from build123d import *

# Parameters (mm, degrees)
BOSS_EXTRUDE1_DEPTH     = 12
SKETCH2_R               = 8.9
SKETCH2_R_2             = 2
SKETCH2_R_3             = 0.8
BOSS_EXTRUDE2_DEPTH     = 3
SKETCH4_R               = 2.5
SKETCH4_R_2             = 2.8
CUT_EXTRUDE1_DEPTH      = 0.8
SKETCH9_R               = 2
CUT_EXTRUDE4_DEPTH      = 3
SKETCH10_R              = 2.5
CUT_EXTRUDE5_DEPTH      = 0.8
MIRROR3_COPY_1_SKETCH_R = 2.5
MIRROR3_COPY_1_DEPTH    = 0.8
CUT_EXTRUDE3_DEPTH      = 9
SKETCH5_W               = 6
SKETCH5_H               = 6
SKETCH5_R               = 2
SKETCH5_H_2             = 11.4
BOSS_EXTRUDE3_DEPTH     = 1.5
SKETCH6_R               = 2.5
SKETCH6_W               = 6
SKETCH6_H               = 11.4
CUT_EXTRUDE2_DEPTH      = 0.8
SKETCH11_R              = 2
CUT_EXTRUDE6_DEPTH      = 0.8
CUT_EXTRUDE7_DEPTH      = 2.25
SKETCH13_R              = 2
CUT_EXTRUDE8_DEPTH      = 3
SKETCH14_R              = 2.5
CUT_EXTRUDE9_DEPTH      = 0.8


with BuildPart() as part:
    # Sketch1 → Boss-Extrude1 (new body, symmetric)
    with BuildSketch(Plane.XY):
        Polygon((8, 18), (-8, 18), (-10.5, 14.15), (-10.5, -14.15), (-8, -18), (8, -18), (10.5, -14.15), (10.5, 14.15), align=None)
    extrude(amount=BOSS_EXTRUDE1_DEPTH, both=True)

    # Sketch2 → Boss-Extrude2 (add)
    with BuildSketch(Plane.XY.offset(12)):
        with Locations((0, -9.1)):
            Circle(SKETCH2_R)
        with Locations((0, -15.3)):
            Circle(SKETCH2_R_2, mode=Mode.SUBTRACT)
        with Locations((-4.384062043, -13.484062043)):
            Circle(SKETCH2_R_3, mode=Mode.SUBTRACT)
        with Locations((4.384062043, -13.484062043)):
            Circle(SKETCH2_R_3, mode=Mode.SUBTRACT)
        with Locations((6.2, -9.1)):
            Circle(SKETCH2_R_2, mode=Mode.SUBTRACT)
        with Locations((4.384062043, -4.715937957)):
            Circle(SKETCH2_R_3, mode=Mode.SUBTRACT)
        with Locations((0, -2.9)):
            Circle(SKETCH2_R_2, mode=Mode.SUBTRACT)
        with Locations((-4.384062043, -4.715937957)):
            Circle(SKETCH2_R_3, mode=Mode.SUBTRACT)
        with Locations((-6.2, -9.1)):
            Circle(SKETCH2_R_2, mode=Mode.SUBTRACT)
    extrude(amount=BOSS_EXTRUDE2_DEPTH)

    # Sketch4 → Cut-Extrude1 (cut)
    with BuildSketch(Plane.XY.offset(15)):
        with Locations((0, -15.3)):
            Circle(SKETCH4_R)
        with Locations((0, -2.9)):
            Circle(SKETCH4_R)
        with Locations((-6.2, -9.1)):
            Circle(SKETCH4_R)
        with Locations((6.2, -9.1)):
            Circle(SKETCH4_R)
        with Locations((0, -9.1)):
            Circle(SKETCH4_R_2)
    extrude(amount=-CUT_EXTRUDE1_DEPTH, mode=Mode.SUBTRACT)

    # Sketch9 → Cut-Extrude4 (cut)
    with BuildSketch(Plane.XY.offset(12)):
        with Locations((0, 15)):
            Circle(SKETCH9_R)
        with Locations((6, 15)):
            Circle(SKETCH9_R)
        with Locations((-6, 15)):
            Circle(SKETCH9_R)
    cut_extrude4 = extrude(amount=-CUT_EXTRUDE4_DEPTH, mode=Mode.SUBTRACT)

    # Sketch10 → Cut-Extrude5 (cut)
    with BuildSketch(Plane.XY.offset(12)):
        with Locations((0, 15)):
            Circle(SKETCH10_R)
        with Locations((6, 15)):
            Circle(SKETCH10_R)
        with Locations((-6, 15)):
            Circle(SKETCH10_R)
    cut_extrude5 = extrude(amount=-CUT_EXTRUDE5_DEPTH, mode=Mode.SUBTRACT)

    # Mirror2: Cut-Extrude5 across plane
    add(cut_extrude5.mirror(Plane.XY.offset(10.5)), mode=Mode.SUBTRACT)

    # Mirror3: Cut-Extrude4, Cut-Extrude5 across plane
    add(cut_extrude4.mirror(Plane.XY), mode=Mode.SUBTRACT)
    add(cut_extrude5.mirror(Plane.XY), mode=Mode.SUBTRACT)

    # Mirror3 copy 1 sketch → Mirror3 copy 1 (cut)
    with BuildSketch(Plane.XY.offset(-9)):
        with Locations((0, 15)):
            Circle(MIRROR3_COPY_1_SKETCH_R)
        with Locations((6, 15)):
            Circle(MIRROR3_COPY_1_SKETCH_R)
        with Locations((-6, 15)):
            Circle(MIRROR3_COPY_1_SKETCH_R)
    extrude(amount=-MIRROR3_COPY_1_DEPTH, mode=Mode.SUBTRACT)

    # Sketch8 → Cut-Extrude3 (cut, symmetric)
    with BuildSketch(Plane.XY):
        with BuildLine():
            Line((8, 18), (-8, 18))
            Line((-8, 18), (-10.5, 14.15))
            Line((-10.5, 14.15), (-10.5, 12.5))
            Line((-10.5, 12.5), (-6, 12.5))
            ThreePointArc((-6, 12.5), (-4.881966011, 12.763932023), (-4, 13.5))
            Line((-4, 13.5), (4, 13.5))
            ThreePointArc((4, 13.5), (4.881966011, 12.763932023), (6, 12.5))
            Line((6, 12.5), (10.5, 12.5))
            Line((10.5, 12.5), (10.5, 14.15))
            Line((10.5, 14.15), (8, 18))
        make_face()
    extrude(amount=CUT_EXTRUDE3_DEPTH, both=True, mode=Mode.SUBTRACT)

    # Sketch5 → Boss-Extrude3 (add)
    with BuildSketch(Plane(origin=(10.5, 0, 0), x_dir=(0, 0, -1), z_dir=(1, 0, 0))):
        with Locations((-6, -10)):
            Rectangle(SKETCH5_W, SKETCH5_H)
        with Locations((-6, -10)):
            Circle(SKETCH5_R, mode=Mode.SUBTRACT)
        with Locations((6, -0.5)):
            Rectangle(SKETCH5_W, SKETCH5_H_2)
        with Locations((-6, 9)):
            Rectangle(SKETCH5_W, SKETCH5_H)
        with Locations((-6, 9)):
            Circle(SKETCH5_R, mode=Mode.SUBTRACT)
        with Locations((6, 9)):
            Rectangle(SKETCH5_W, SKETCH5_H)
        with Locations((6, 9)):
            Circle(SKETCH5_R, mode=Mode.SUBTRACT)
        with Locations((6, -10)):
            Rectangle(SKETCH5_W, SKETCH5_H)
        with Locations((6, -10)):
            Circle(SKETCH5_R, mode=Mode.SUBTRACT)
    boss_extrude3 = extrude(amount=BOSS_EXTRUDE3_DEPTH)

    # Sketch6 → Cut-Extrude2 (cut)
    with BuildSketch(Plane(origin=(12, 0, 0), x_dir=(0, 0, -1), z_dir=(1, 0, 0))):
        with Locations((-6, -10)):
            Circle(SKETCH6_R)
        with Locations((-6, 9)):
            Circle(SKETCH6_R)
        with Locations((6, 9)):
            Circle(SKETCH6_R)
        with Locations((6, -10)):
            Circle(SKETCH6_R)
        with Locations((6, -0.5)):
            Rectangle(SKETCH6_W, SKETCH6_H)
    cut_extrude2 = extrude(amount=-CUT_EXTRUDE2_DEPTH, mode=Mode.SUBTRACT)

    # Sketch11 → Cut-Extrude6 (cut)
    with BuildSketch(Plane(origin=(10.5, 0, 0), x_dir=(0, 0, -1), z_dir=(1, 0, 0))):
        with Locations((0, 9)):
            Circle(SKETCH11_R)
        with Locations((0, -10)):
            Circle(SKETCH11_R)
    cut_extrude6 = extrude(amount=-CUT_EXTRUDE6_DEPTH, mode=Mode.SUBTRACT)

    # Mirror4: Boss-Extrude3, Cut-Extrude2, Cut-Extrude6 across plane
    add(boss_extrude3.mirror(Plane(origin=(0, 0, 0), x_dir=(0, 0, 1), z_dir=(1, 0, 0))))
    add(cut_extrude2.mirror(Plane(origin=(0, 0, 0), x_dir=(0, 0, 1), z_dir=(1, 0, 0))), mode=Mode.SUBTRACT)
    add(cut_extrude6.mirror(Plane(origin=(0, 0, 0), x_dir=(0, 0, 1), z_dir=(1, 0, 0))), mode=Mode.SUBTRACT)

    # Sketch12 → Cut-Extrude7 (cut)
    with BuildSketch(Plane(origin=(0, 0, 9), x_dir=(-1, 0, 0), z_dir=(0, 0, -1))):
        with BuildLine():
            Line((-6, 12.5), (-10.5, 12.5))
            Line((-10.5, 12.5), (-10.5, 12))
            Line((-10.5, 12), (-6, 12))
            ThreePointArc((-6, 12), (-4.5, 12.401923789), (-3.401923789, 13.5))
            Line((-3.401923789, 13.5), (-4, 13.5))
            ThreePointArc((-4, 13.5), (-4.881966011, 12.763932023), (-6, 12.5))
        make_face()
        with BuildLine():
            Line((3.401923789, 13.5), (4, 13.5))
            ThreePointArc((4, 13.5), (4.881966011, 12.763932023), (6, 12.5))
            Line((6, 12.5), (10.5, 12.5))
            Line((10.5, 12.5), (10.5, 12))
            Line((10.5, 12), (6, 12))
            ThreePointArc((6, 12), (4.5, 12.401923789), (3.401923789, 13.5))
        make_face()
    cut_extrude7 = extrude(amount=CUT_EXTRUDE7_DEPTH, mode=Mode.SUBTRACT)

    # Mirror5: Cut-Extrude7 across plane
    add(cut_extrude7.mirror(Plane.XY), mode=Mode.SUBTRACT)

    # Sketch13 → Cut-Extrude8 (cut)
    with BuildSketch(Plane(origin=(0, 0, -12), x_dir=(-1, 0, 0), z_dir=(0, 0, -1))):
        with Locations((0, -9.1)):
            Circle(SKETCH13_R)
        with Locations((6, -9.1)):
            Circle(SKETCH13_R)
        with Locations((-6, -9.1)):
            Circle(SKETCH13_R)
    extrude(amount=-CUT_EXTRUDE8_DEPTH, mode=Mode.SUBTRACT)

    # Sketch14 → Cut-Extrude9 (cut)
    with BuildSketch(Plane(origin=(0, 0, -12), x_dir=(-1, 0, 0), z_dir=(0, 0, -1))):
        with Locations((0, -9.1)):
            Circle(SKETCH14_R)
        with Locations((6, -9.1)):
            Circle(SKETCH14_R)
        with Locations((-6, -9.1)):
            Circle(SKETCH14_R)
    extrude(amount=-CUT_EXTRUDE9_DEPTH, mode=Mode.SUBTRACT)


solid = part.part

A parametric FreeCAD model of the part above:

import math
import FreeCAD as App
import Part
import Sketcher

V = App.Vector
Q = App.Units.Quantity

doc = App.newDocument("Part")
body = doc.addObject("PartDesign::Body", "Body")

# Sketch on XY plane
sketch1 = body.newObject("Sketcher::SketchObject", "Sketch")
sketch1.AttachmentSupport = (doc.getObject("XY_Plane"), [""])
sketch1.MapMode = "FlatFace"
sketch1.addGeometry([
    Part.LineSegment(V(8, 18, 0), V(-8, 18, 0)),  # 0
    Part.LineSegment(V(-8, 18, 0), V(-10.5, 14.15, 0)),  # 1
    Part.LineSegment(V(-10.5, 14.15, 0), V(-10.5, -14.15, 0)),  # 2
    Part.LineSegment(V(-10.5, -14.15, 0), V(-8, -18, 0)),  # 3
    Part.LineSegment(V(-8, -18, 0), V(8, -18, 0)),  # 4
    Part.LineSegment(V(8, -18, 0), V(10.5, -14.15, 0)),  # 5
    Part.LineSegment(V(10.5, -14.15, 0), V(10.5, 14.15, 0)),  # 6
    Part.LineSegment(V(10.5, 14.15, 0), V(8, 18, 0)),  # 7
], False)
sketch1.addConstraint([
    Sketcher.Constraint("Coincident", 0, 2, 1, 1),
    Sketcher.Constraint("Coincident", 1, 2, 2, 1),
    Sketcher.Constraint("Coincident", 2, 2, 3, 1),
    Sketcher.Constraint("Coincident", 3, 2, 4, 1),
    Sketcher.Constraint("Coincident", 4, 2, 5, 1),
    Sketcher.Constraint("Coincident", 5, 2, 6, 1),
    Sketcher.Constraint("Coincident", 6, 2, 7, 1),
    Sketcher.Constraint("Coincident", 7, 2, 0, 1),
    Sketcher.Constraint("Horizontal", 0),
    Sketcher.Constraint("Vertical", 2),
    Sketcher.Constraint("Horizontal", 4),
    Sketcher.Constraint("Vertical", 6),
    Sketcher.Constraint("Symmetric", 0, 2, 4, 2, -1, 1),
    Sketcher.Constraint("Symmetric", 1, 2, 5, 2, -1, 1),
    Sketcher.Constraint("Parallel", 3, 7),
    Sketcher.Constraint("Horizontal", 2, 2, 5, 2),
    Sketcher.Constraint("Horizontal", 1, 2, 6, 2),
    Sketcher.Constraint("Vertical", 0, 2, 3, 2),
    Sketcher.Constraint("DistanceX", 0, 2, 0, 1, Q("16 mm")),
    Sketcher.Constraint("DistanceY", 2, 2, 2, 1, Q("28.3 mm")),
    Sketcher.Constraint("DistanceY", -1, 1, 0, 2, Q("18 mm")),
    Sketcher.Constraint("DistanceX", 2, 2, 5, 2, Q("21 mm")),
])
pad1 = body.newObject("PartDesign::Pad", "Pad")
pad1.Profile = sketch1
pad1.Length = 24
pad1.Midplane = True

# Sketch on XY plane
sketch2 = body.newObject("Sketcher::SketchObject", "Sketch001")
sketch2.AttachmentSupport = (doc.getObject("XY_Plane"), [""])
sketch2.MapMode = "FlatFace"
sketch2.AttachmentOffset = App.Placement(V(0, 0, 12), App.Rotation())
sketch2.addGeometry([
    Part.Circle(V(0, -9.1, 0), V(0, 0, 1), 8.9),  # 0
    Part.Circle(V(-4.384062, -13.484062, 0), V(0, 0, 1), 0.8),  # 1
    Part.Circle(V(0, -15.3, 0), V(0, 0, 1), 2),  # 2
    Part.Circle(V(4.384062, -13.484062, 0), V(0, 0, 1), 0.8),  # 3
    Part.Circle(V(-6.2, -9.1, 0), V(0, 0, 1), 2),  # 4
    Part.Circle(V(-4.384062, -4.715938, 0), V(0, 0, 1), 0.8),  # 5
    Part.Circle(V(6.2, -9.1, 0), V(0, 0, 1), 2),  # 6
    Part.Circle(V(0, -2.9, 0), V(0, 0, 1), 2),  # 7
    Part.Circle(V(4.384062, -4.715938, 0), V(0, 0, 1), 0.8),  # 8
], False)
sketch2.addConstraint([
    Sketcher.Constraint("Equal", 1, 3),
    Sketcher.Constraint("Equal", 2, 4),
    Sketcher.Constraint("Equal", 3, 5),
    Sketcher.Constraint("Equal", 4, 6),
    Sketcher.Constraint("Equal", 6, 7),
    Sketcher.Constraint("Equal", 5, 8),
    Sketcher.Constraint("Symmetric", 1, 3, 3, 3, -2),
    Sketcher.Constraint("Symmetric", 4, 3, 6, 3, -2),
    Sketcher.Constraint("Symmetric", 5, 3, 8, 3, -2),
    Sketcher.Constraint("PointOnObject", 0, 3, -2),
    Sketcher.Constraint("PointOnObject", 2, 3, -2),
    Sketcher.Constraint("PointOnObject", 7, 3, -2),
    Sketcher.Constraint("Horizontal", 0, 3, 4, 3),
    Sketcher.Constraint("Vertical", 1, 3, 5, 3),
    Sketcher.Constraint("Diameter", 2, Q("4 mm")),
    Sketcher.Constraint("Diameter", 0, Q("17.8 mm")),
    Sketcher.Constraint("Diameter", 1, Q("1.6 mm")),
    Sketcher.Constraint("DistanceY", 0, 3, -1, 1, Q("9.1 mm")),
    Sketcher.Constraint("DistanceY", 2, 3, -1, 1, Q("15.3 mm")),
    Sketcher.Constraint("DistanceX", 4, 3, -1, 1, Q("6.2 mm")),
    Sketcher.Constraint("DistanceY", 7, 3, -1, 1, Q("2.9 mm")),
    Sketcher.Constraint("DistanceX", 1, 3, -1, 1, Q("4.384062 mm")),
    Sketcher.Constraint("DistanceY", 1, 3, -1, 1, Q("13.484062 mm")),
    Sketcher.Constraint("DistanceY", 5, 3, -1, 1, Q("4.715938 mm")),
])
pad2 = body.newObject("PartDesign::Pad", "Pad001")
pad2.Profile = sketch2
pad2.Length = 3

# Sketch on XY plane
sketch3 = body.newObject("Sketcher::SketchObject", "Sketch002")
sketch3.AttachmentSupport = (doc.getObject("XY_Plane"), [""])
sketch3.MapMode = "FlatFace"
sketch3.AttachmentOffset = App.Placement(V(0, 0, 15), App.Rotation())
sketch3.addGeometry([
    Part.Circle(V(0, -15.3, 0), V(0, 0, 1), 2.5),  # 0
    Part.Circle(V(0, -2.9, 0), V(0, 0, 1), 2.5),  # 1
    Part.Circle(V(-6.2, -9.1, 0), V(0, 0, 1), 2.5),  # 2
    Part.Circle(V(6.2, -9.1, 0), V(0, 0, 1), 2.5),  # 3
    Part.Circle(V(0, -9.1, 0), V(0, 0, 1), 2.8),  # 4
], False)
sketch3.addConstraint([
    Sketcher.Constraint("Equal", 0, 1),
    Sketcher.Constraint("Equal", 1, 2),
    Sketcher.Constraint("Equal", 2, 3),
    Sketcher.Constraint("Symmetric", 2, 3, 3, 3, -2),
    Sketcher.Constraint("PointOnObject", 0, 3, -2),
    Sketcher.Constraint("PointOnObject", 1, 3, -2),
    Sketcher.Constraint("PointOnObject", 4, 3, -2),
    Sketcher.Constraint("Horizontal", 3, 3, 4, 3),
    Sketcher.Constraint("Diameter", 0, Q("5 mm")),
    Sketcher.Constraint("Diameter", 4, Q("5.6 mm")),
    Sketcher.Constraint("DistanceY", 0, 3, -1, 1, Q("15.3 mm")),
    Sketcher.Constraint("DistanceY", 1, 3, -1, 1, Q("2.9 mm")),
    Sketcher.Constraint("DistanceX", 2, 3, -1, 1, Q("6.2 mm")),
    Sketcher.Constraint("DistanceY", 2, 3, -1, 1, Q("9.1 mm")),
])
pocket1 = body.newObject("PartDesign::Pocket", "Pocket")
pocket1.Profile = sketch3
pocket1.Length = 0.8

# Sketch on XY plane
sketch4 = body.newObject("Sketcher::SketchObject", "Sketch003")
sketch4.AttachmentSupport = (doc.getObject("XY_Plane"), [""])
sketch4.MapMode = "FlatFace"
sketch4.AttachmentOffset = App.Placement(V(0, 0, 12), App.Rotation())
sketch4.addGeometry([
    Part.Circle(V(0, 15, 0), V(0, 0, 1), 2),
    Part.Circle(V(6, 15, 0), V(0, 0, 1), 2),
    Part.Circle(V(-6, 15, 0), V(0, 0, 1), 2),
], False)
sketch4.addConstraint([
    Sketcher.Constraint("Equal", 0, 1),
    Sketcher.Constraint("Equal", 1, 2),
    Sketcher.Constraint("Symmetric", 1, 3, 2, 3, -2),
    Sketcher.Constraint("PointOnObject", 0, 3, -2),
    Sketcher.Constraint("Horizontal", 0, 3, 1, 3),
    Sketcher.Constraint("Diameter", 0, Q("4 mm")),
    Sketcher.Constraint("DistanceY", -1, 1, 0, 3, Q("15 mm")),
    Sketcher.Constraint("DistanceX", -1, 1, 1, 3, Q("6 mm")),
])
pocket2 = body.newObject("PartDesign::Pocket", "Pocket001")
pocket2.Profile = sketch4
pocket2.Length = 3

# Sketch on XY plane
sketch5 = body.newObject("Sketcher::SketchObject", "Sketch004")
sketch5.AttachmentSupport = (doc.getObject("XY_Plane"), [""])
sketch5.MapMode = "FlatFace"
sketch5.AttachmentOffset = App.Placement(V(0, 0, 12), App.Rotation())
sketch5.addGeometry([
    Part.Circle(V(0, 15, 0), V(0, 0, 1), 2.5),
    Part.Circle(V(6, 15, 0), V(0, 0, 1), 2.5),
    Part.Circle(V(-6, 15, 0), V(0, 0, 1), 2.5),
], False)
sketch5.addConstraint([
    Sketcher.Constraint("Equal", 0, 1),
    Sketcher.Constraint("Equal", 1, 2),
    Sketcher.Constraint("Symmetric", 1, 3, 2, 3, -2),
    Sketcher.Constraint("PointOnObject", 0, 3, -2),
    Sketcher.Constraint("Horizontal", 0, 3, 1, 3),
    Sketcher.Constraint("Diameter", 0, Q("5 mm")),
    Sketcher.Constraint("DistanceY", -1, 1, 0, 3, Q("15 mm")),
    Sketcher.Constraint("DistanceX", -1, 1, 1, 3, Q("6 mm")),
])
pocket3 = body.newObject("PartDesign::Pocket", "Pocket002")
pocket3.Profile = sketch5
pocket3.Length = 0.8
doc.recompute()

datumplane = body.newObject("PartDesign::Plane", "DatumPlane")
datumplane.AttachmentSupport = (doc.getObject("XY_Plane"), [""])
datumplane.MapMode = "FlatFace"
datumplane.AttachmentOffset = App.Placement(V(0, 0, 10.5), App.Rotation())
mirrored = body.newObject("PartDesign::Mirrored", "Mirrored")
mirrored.Originals = [pocket3]
mirrored.MirrorPlane = (datumplane, [""])
body.Tip = mirrored
doc.recompute()

mirrored2 = body.newObject("PartDesign::Mirrored", "Mirrored001")
mirrored2.Originals = [pocket2, pocket3]
mirrored2.MirrorPlane = (doc.getObject("XY_Plane"), [""])
body.Tip = mirrored2

# Sketch on XY plane
sketch6 = body.newObject("Sketcher::SketchObject", "Sketch005")
sketch6.AttachmentSupport = (doc.getObject("XY_Plane"), [""])
sketch6.MapMode = "FlatFace"
sketch6.AttachmentOffset = App.Placement(V(0, 0, -9), App.Rotation())
sketch6.addGeometry([
    Part.Circle(V(0, 15, 0), V(0, 0, 1), 2.5),
    Part.Circle(V(6, 15, 0), V(0, 0, 1), 2.5),
    Part.Circle(V(-6, 15, 0), V(0, 0, 1), 2.5),
], False)
sketch6.addConstraint([
    Sketcher.Constraint("Equal", 0, 1),
    Sketcher.Constraint("Equal", 1, 2),
    Sketcher.Constraint("Symmetric", 1, 3, 2, 3, -2),
    Sketcher.Constraint("PointOnObject", 0, 3, -2),
    Sketcher.Constraint("Horizontal", 0, 3, 1, 3),
    Sketcher.Constraint("Diameter", 0, Q("5 mm")),
    Sketcher.Constraint("DistanceY", -1, 1, 0, 3, Q("15 mm")),
    Sketcher.Constraint("DistanceX", -1, 1, 1, 3, Q("6 mm")),
])
pocket4 = body.newObject("PartDesign::Pocket", "Pocket003")
pocket4.Profile = sketch6
pocket4.Length = 0.8

# Sketch on XY plane
sketch7 = body.newObject("Sketcher::SketchObject", "Sketch006")
sketch7.AttachmentSupport = (doc.getObject("XY_Plane"), [""])
sketch7.MapMode = "FlatFace"
sketch7.addGeometry([
    Part.LineSegment(V(8, 18, 0), V(-8, 18, 0)),  # 0
    Part.LineSegment(V(-8, 18, 0), V(-10.5, 14.15, 0)),  # 1
    Part.LineSegment(V(-10.5, 14.15, 0), V(-10.5, 12.5, 0)),  # 2
    Part.LineSegment(V(-10.5, 12.5, 0), V(-6, 12.5, 0)),  # 3
    Part.ArcOfCircle(Part.Circle(V(-6, 15, 0), V(0, 0, 1), 2.5), math.radians(-90), math.radians(-36.869898)),  # 4
    Part.LineSegment(V(-4, 13.5, 0), V(4, 13.5, 0)),  # 5
    Part.ArcOfCircle(Part.Circle(V(6, 15, 0), V(0, 0, 1), 2.5), math.radians(-143.130102), math.radians(-90)),  # 6
    Part.LineSegment(V(6, 12.5, 0), V(10.5, 12.5, 0)),  # 7
    Part.LineSegment(V(10.5, 12.5, 0), V(10.5, 14.15, 0)),  # 8
    Part.LineSegment(V(10.5, 14.15, 0), V(8, 18, 0)),  # 9
], False)
sketch7.addConstraint([
    Sketcher.Constraint("Coincident", 0, 2, 1, 1),
    Sketcher.Constraint("Coincident", 1, 2, 2, 1),
    Sketcher.Constraint("Coincident", 2, 2, 3, 1),
    Sketcher.Constraint("Tangent", 3, 2, 4, 1),
    Sketcher.Constraint("Coincident", 4, 2, 5, 1),
    Sketcher.Constraint("Coincident", 5, 2, 6, 1),
    Sketcher.Constraint("Tangent", 6, 2, 7, 1),
    Sketcher.Constraint("Coincident", 7, 2, 8, 1),
    Sketcher.Constraint("Coincident", 8, 2, 9, 1),
    Sketcher.Constraint("Coincident", 9, 2, 0, 1),
    Sketcher.Constraint("Horizontal", 0),
    Sketcher.Constraint("Vertical", 2),
    Sketcher.Constraint("Horizontal", 3),
    Sketcher.Constraint("Horizontal", 5),
    Sketcher.Constraint("Horizontal", 7),
    Sketcher.Constraint("Vertical", 8),
    Sketcher.Constraint("Equal", 4, 6),
    Sketcher.Constraint("Symmetric", 4, 3, 6, 3, -2),
    Sketcher.Constraint("Symmetric", 1, 2, 8, 2, -2),
    Sketcher.Constraint("Equal", 1, 9),
    Sketcher.Constraint("Radius", 4, Q("2.5 mm")),
    Sketcher.Constraint("DistanceX", 0, 2, 0, 1, Q("16 mm")),
    Sketcher.Constraint("DistanceX", 5, 1, 5, 2, Q("8 mm")),
    Sketcher.Constraint("DistanceX", 3, 1, 3, 2, Q("4.5 mm")),
    Sketcher.Constraint("DistanceX", 4, 3, -1, 1, Q("6 mm")),
    Sketcher.Constraint("DistanceY", -1, 1, 4, 3, Q("15 mm")),
    Sketcher.Constraint("DistanceY", -1, 1, 0, 2, Q("18 mm")),
    Sketcher.Constraint("DistanceY", 2, 2, 2, 1, Q("1.65 mm")),
])
pocket5 = body.newObject("PartDesign::Pocket", "Pocket004")
pocket5.Profile = sketch7
pocket5.Length = 18
pocket5.Midplane = True

# Sketch on YZ plane
sketch8 = body.newObject("Sketcher::SketchObject", "Sketch007")
sketch8.AttachmentSupport = (doc.getObject("YZ_Plane"), [""])
sketch8.MapMode = "FlatFace"
sketch8.AttachmentOffset = App.Placement(V(0, 0, 10.5), App.Rotation())
sketch8.addGeometry([
    Part.LineSegment(V(-7, 9, 0), V(-13, 9, 0)),  # 0
    Part.LineSegment(V(-13, 9, 0), V(-13, 3, 0)),  # 1
    Part.LineSegment(V(-13, 3, 0), V(-7, 3, 0)),  # 2
    Part.LineSegment(V(-7, 3, 0), V(-7, 9, 0)),  # 3
    Part.Circle(V(-10, 6, 0), V(0, 0, 1), 2),  # 4
    Part.LineSegment(V(5.2, -3, 0), V(-6.2, -3, 0)),  # 5
    Part.LineSegment(V(-6.2, -3, 0), V(-6.2, -9, 0)),  # 6
    Part.LineSegment(V(-6.2, -9, 0), V(5.2, -9, 0)),  # 7
    Part.LineSegment(V(5.2, -9, 0), V(5.2, -3, 0)),  # 8
    Part.LineSegment(V(12, 9, 0), V(6, 9, 0)),  # 9
    Part.LineSegment(V(6, 9, 0), V(6, 3, 0)),  # 10
    Part.LineSegment(V(6, 3, 0), V(12, 3, 0)),  # 11
    Part.LineSegment(V(12, 3, 0), V(12, 9, 0)),  # 12
    Part.Circle(V(9, 6, 0), V(0, 0, 1), 2),  # 13
    Part.LineSegment(V(12, -3, 0), V(6, -3, 0)),  # 14
    Part.LineSegment(V(6, -3, 0), V(6, -9, 0)),  # 15
    Part.LineSegment(V(6, -9, 0), V(12, -9, 0)),  # 16
    Part.LineSegment(V(12, -9, 0), V(12, -3, 0)),  # 17
    Part.Circle(V(9, -6, 0), V(0, 0, 1), 2),  # 18
    Part.LineSegment(V(-7, -3, 0), V(-13, -3, 0)),  # 19
    Part.LineSegment(V(-13, -3, 0), V(-13, -9, 0)),  # 20
    Part.LineSegment(V(-13, -9, 0), V(-7, -9, 0)),  # 21
    Part.LineSegment(V(-7, -9, 0), V(-7, -3, 0)),  # 22
    Part.Circle(V(-10, -6, 0), V(0, 0, 1), 2),  # 23
], False)
sketch8.addConstraint([
    Sketcher.Constraint("Coincident", 0, 2, 1, 1),
    Sketcher.Constraint("Coincident", 1, 2, 2, 1),
    Sketcher.Constraint("Coincident", 2, 2, 3, 1),
    Sketcher.Constraint("Coincident", 3, 2, 0, 1),
    Sketcher.Constraint("Coincident", 5, 2, 6, 1),
    Sketcher.Constraint("Coincident", 6, 2, 7, 1),
    Sketcher.Constraint("Coincident", 7, 2, 8, 1),
    Sketcher.Constraint("Coincident", 8, 2, 5, 1),
    Sketcher.Constraint("Coincident", 9, 2, 10, 1),
    Sketcher.Constraint("Coincident", 10, 2, 11, 1),
    Sketcher.Constraint("Coincident", 11, 2, 12, 1),
    Sketcher.Constraint("Coincident", 12, 2, 9, 1),
    Sketcher.Constraint("Coincident", 14, 2, 15, 1),
    Sketcher.Constraint("Coincident", 15, 2, 16, 1),
    Sketcher.Constraint("Coincident", 16, 2, 17, 1),
    Sketcher.Constraint("Coincident", 17, 2, 14, 1),
    Sketcher.Constraint("Coincident", 19, 2, 20, 1),
    Sketcher.Constraint("Coincident", 20, 2, 21, 1),
    Sketcher.Constraint("Coincident", 21, 2, 22, 1),
    Sketcher.Constraint("Coincident", 22, 2, 19, 1),
    Sketcher.Constraint("Horizontal", 0),
    Sketcher.Constraint("Vertical", 1),
    Sketcher.Constraint("Horizontal", 2),
    Sketcher.Constraint("Vertical", 3),
    Sketcher.Constraint("Horizontal", 5),
    Sketcher.Constraint("Vertical", 6),
    Sketcher.Constraint("Horizontal", 7),
    Sketcher.Constraint("Vertical", 8),
    Sketcher.Constraint("Horizontal", 9),
    Sketcher.Constraint("Vertical", 10),
    Sketcher.Constraint("Horizontal", 11),
    Sketcher.Constraint("Vertical", 12),
    Sketcher.Constraint("Horizontal", 14),
    Sketcher.Constraint("Vertical", 15),
    Sketcher.Constraint("Horizontal", 16),
    Sketcher.Constraint("Vertical", 17),
    Sketcher.Constraint("Horizontal", 19),
    Sketcher.Constraint("Vertical", 20),
    Sketcher.Constraint("Horizontal", 21),
    Sketcher.Constraint("Vertical", 22),
    Sketcher.Constraint("Equal", 4, 13),
    Sketcher.Constraint("Equal", 13, 18),
    Sketcher.Constraint("Equal", 18, 23),
    Sketcher.Constraint("Symmetric", 13, 3, 18, 3, -1),
    Sketcher.Constraint("Symmetric", 4, 3, 23, 3, -1),
    Sketcher.Constraint("Symmetric", 10, 2, 14, 2, -1),
    Sketcher.Constraint("Symmetric", 12, 2, 16, 2, -1),
    Sketcher.Constraint("Symmetric", 1, 2, 19, 2, -1),
    Sketcher.Constraint("Symmetric", 3, 2, 21, 2, -1),
    Sketcher.Constraint("Horizontal", 4, 3, 13, 3),
    Sketcher.Constraint("Horizontal", 3, 2, 9, 2),
    Sketcher.Constraint("Horizontal", 2, 2, 10, 2),
    Sketcher.Constraint("Horizontal", 8, 2, 14, 2),
    Sketcher.Constraint("Horizontal", 7, 2, 15, 2),
    Sketcher.Constraint("Equal", 2, 9),
    Sketcher.Constraint("Equal", 21, 1),
    Sketcher.Constraint("Diameter", 4, Q("4 mm")),
    Sketcher.Constraint("DistanceX", 0, 2, 0, 1, Q("6 mm")),
    Sketcher.Constraint("DistanceX", 5, 2, 5, 1, Q("11.4 mm")),
    Sketcher.Constraint("DistanceX", 4, 3, -1, 1, Q("10 mm")),
    Sketcher.Constraint("DistanceY", -1, 1, 4, 3, Q("6 mm")),
    Sketcher.Constraint("DistanceX", -1, 1, 13, 3, Q("9 mm")),
    Sketcher.Constraint("DistanceX", 0, 2, -1, 1, Q("13 mm")),
    Sketcher.Constraint("DistanceY", -1, 1, 0, 2, Q("9 mm")),
    Sketcher.Constraint("DistanceX", -1, 1, 9, 2, Q("6 mm")),
    Sketcher.Constraint("DistanceX", 5, 2, -1, 1, Q("6.2 mm")),
])
pad3 = body.newObject("PartDesign::Pad", "Pad002")
pad3.Profile = sketch8
pad3.Length = 1.5

# Sketch on YZ plane
sketch9 = body.newObject("Sketcher::SketchObject", "Sketch008")
sketch9.AttachmentSupport = (doc.getObject("YZ_Plane"), [""])
sketch9.MapMode = "FlatFace"
sketch9.AttachmentOffset = App.Placement(V(0, 0, 12), App.Rotation())
sketch9.addGeometry([
    Part.Circle(V(-10, 6, 0), V(0, 0, 1), 2.5),  # 0
    Part.Circle(V(9, 6, 0), V(0, 0, 1), 2.5),  # 1
    Part.Circle(V(9, -6, 0), V(0, 0, 1), 2.5),  # 2
    Part.Circle(V(-10, -6, 0), V(0, 0, 1), 2.5),  # 3
    Part.LineSegment(V(5.2, -3, 0), V(-6.2, -3, 0)),  # 4
    Part.LineSegment(V(-6.2, -3, 0), V(-6.2, -9, 0)),  # 5
    Part.LineSegment(V(-6.2, -9, 0), V(5.2, -9, 0)),  # 6
    Part.LineSegment(V(5.2, -9, 0), V(5.2, -3, 0)),  # 7
], False)
sketch9.addConstraint([
    Sketcher.Constraint("Coincident", 4, 2, 5, 1),
    Sketcher.Constraint("Coincident", 5, 2, 6, 1),
    Sketcher.Constraint("Coincident", 6, 2, 7, 1),
    Sketcher.Constraint("Coincident", 7, 2, 4, 1),
    Sketcher.Constraint("Horizontal", 4),
    Sketcher.Constraint("Vertical", 5),
    Sketcher.Constraint("Horizontal", 6),
    Sketcher.Constraint("Vertical", 7),
    Sketcher.Constraint("Equal", 0, 1),
    Sketcher.Constraint("Equal", 1, 2),
    Sketcher.Constraint("Equal", 2, 3),
    Sketcher.Constraint("Symmetric", 1, 3, 2, 3, -1),
    Sketcher.Constraint("Symmetric", 0, 3, 3, 3, -1),
    Sketcher.Constraint("Horizontal", 0, 3, 1, 3),
    Sketcher.Constraint("Diameter", 0, Q("5 mm")),
    Sketcher.Constraint("DistanceY", 5, 2, 5, 1, Q("6 mm")),
    Sketcher.Constraint("DistanceX", 4, 2, 4, 1, Q("11.4 mm")),
    Sketcher.Constraint("DistanceX", 0, 3, -1, 1, Q("10 mm")),
    Sketcher.Constraint("DistanceY", -1, 1, 0, 3, Q("6 mm")),
    Sketcher.Constraint("DistanceX", -1, 1, 1, 3, Q("9 mm")),
    Sketcher.Constraint("DistanceY", 4, 2, -1, 1, Q("3 mm")),
    Sketcher.Constraint("DistanceX", 4, 2, -1, 1, Q("6.2 mm")),
])
pocket6 = body.newObject("PartDesign::Pocket", "Pocket005")
pocket6.Profile = sketch9
pocket6.Length = 0.8

# Sketch on YZ plane
sketch10 = body.newObject("Sketcher::SketchObject", "Sketch009")
sketch10.AttachmentSupport = (doc.getObject("YZ_Plane"), [""])
sketch10.MapMode = "FlatFace"
sketch10.AttachmentOffset = App.Placement(V(0, 0, 10.5), App.Rotation())
sketch10.addGeometry([
    Part.Circle(V(9, 0, 0), V(0, 0, 1), 2),
    Part.Circle(V(-10, 0, 0), V(0, 0, 1), 2),
], False)
sketch10.addConstraint([
    Sketcher.Constraint("Equal", 0, 1),
    Sketcher.Constraint("PointOnObject", 0, 3, -1),
    Sketcher.Constraint("PointOnObject", 1, 3, -1),
    Sketcher.Constraint("Diameter", 0, Q("4 mm")),
    Sketcher.Constraint("DistanceX", -1, 1, 0, 3, Q("9 mm")),
    Sketcher.Constraint("DistanceX", 1, 3, -1, 1, Q("10 mm")),
])
pocket7 = body.newObject("PartDesign::Pocket", "Pocket006")
pocket7.Profile = sketch10
pocket7.Length = 0.8
doc.recompute()

mirrored3 = body.newObject("PartDesign::Mirrored", "Mirrored002")
mirrored3.Originals = [pad3, pocket6, pocket7]
mirrored3.MirrorPlane = (doc.getObject("YZ_Plane"), [""])
body.Tip = mirrored3

# Sketch on XY plane
sketch11 = body.newObject("Sketcher::SketchObject", "Sketch010")
sketch11.AttachmentSupport = (doc.getObject("XY_Plane"), [""])
sketch11.MapMode = "FlatFace"
sketch11.AttachmentOffset = App.Placement(V(0, 0, 9), App.Rotation())
sketch11.addGeometry([
    Part.LineSegment(V(6, 12.5, 0), V(10.5, 12.5, 0)),  # 0
    Part.LineSegment(V(10.5, 12.5, 0), V(10.5, 12, 0)),  # 1
    Part.LineSegment(V(10.5, 12, 0), V(6, 12, 0)),  # 2
    Part.ArcOfCircle(Part.Circle(V(6, 15, 0), V(0, 0, 1), 3), math.radians(-150), math.radians(-90)),  # 3
    Part.LineSegment(V(3.401924, 13.5, 0), V(4, 13.5, 0)),  # 4
    Part.ArcOfCircle(Part.Circle(V(6, 15, 0), V(0, 0, 1), 2.5), math.radians(-143.130102), math.radians(-90)),  # 5
    Part.LineSegment(V(-4, 13.5, 0), V(-3.401924, 13.5, 0)),  # 6
    Part.ArcOfCircle(Part.Circle(V(-6, 15, 0), V(0, 0, 1), 3), math.radians(-90), math.radians(-30)),  # 7
    Part.LineSegment(V(-6, 12, 0), V(-10.5, 12, 0)),  # 8
    Part.LineSegment(V(-10.5, 12, 0), V(-10.5, 12.5, 0)),  # 9
    Part.LineSegment(V(-10.5, 12.5, 0), V(-6, 12.5, 0)),  # 10
    Part.ArcOfCircle(Part.Circle(V(-6, 15, 0), V(0, 0, 1), 2.5), math.radians(-90), math.radians(-36.869898)),  # 11
], False)
sketch11.addConstraint([
    Sketcher.Constraint("Coincident", 0, 2, 1, 1),
    Sketcher.Constraint("Coincident", 1, 2, 2, 1),
    Sketcher.Constraint("Tangent", 2, 2, 3, 2),
    Sketcher.Constraint("Coincident", 3, 1, 4, 1),
    Sketcher.Constraint("Coincident", 4, 2, 5, 1),
    Sketcher.Constraint("Tangent", 5, 2, 0, 1),
    Sketcher.Constraint("Coincident", 6, 2, 7, 2),
    Sketcher.Constraint("Tangent", 7, 1, 8, 1),
    Sketcher.Constraint("Coincident", 8, 2, 9, 1),
    Sketcher.Constraint("Coincident", 9, 2, 10, 1),
    Sketcher.Constraint("Tangent", 10, 2, 11, 1),
    Sketcher.Constraint("Coincident", 11, 2, 6, 1),
    Sketcher.Constraint("Horizontal", 0),
    Sketcher.Constraint("Vertical", 1),
    Sketcher.Constraint("Horizontal", 2),
    Sketcher.Constraint("Horizontal", 4),
    Sketcher.Constraint("Horizontal", 6),
    Sketcher.Constraint("Horizontal", 8),
    Sketcher.Constraint("Vertical", 9),
    Sketcher.Constraint("Horizontal", 10),
    Sketcher.Constraint("Coincident", 5, 3, 3, 3),
    Sketcher.Constraint("Coincident", 11, 3, 7, 3),
    Sketcher.Constraint("Equal", 3, 7),
    Sketcher.Constraint("Equal", 5, 11),
    Sketcher.Constraint("Symmetric", 3, 3, 7, 3, -2),
    Sketcher.Constraint("Horizontal", 4, 2, 6, 2),
    Sketcher.Constraint("Equal", 2, 8),
    Sketcher.Constraint("Radius", 3, Q("3 mm")),
    Sketcher.Constraint("Radius", 5, Q("2.5 mm")),
    Sketcher.Constraint("DistanceX", 0, 1, 0, 2, Q("4.5 mm")),
    Sketcher.Constraint("DistanceX", -1, 1, 3, 3, Q("6 mm")),
    Sketcher.Constraint("DistanceY", -1, 1, 3, 3, Q("15 mm")),
    Sketcher.Constraint("DistanceX", -1, 1, 4, 2, Q("4 mm")),
])
pocket8 = body.newObject("PartDesign::Pocket", "Pocket007")
pocket8.Profile = sketch11
pocket8.Length = 2.25
doc.recompute()

mirrored4 = body.newObject("PartDesign::Mirrored", "Mirrored003")
mirrored4.Originals = [pocket8]
mirrored4.MirrorPlane = (doc.getObject("XY_Plane"), [""])
body.Tip = mirrored4

# Sketch on XY plane
sketch12 = body.newObject("Sketcher::SketchObject", "Sketch011")
sketch12.AttachmentSupport = (doc.getObject("XY_Plane"), [""])
sketch12.MapMode = "FlatFace"
sketch12.AttachmentOffset = App.Placement(V(0, 0, -12), App.Rotation())
sketch12.addGeometry([
    Part.Circle(V(0, -9.1, 0), V(0, 0, 1), 2),
    Part.Circle(V(-6, -9.1, 0), V(0, 0, 1), 2),
    Part.Circle(V(6, -9.1, 0), V(0, 0, 1), 2),
], False)
sketch12.addConstraint([
    Sketcher.Constraint("Equal", 0, 1),
    Sketcher.Constraint("Equal", 1, 2),
    Sketcher.Constraint("Symmetric", 1, 3, 2, 3, -2),
    Sketcher.Constraint("PointOnObject", 0, 3, -2),
    Sketcher.Constraint("Horizontal", 0, 3, 1, 3),
    Sketcher.Constraint("Diameter", 0, Q("4 mm")),
    Sketcher.Constraint("DistanceX", 1, 3, -1, 1, Q("6 mm")),
    Sketcher.Constraint("DistanceY", 0, 3, -1, 1, Q("9.1 mm")),
])
pocket9 = body.newObject("PartDesign::Pocket", "Pocket008")
pocket9.Profile = sketch12
pocket9.Length = 3
pocket9.Reversed = True

# Sketch on XY plane
sketch13 = body.newObject("Sketcher::SketchObject", "Sketch012")
sketch13.AttachmentSupport = (doc.getObject("XY_Plane"), [""])
sketch13.MapMode = "FlatFace"
sketch13.AttachmentOffset = App.Placement(V(0, 0, -12), App.Rotation())
sketch13.addGeometry([
    Part.Circle(V(0, -9.1, 0), V(0, 0, 1), 2.5),
    Part.Circle(V(-6, -9.1, 0), V(0, 0, 1), 2.5),
    Part.Circle(V(6, -9.1, 0), V(0, 0, 1), 2.5),
], False)
sketch13.addConstraint([
    Sketcher.Constraint("Equal", 0, 1),
    Sketcher.Constraint("Equal", 1, 2),
    Sketcher.Constraint("Symmetric", 1, 3, 2, 3, -2),
    Sketcher.Constraint("PointOnObject", 0, 3, -2),
    Sketcher.Constraint("Horizontal", 0, 3, 1, 3),
    Sketcher.Constraint("Diameter", 0, Q("5 mm")),
    Sketcher.Constraint("DistanceX", 1, 3, -1, 1, Q("6 mm")),
    Sketcher.Constraint("DistanceY", 0, 3, -1, 1, Q("9.1 mm")),
])
pocket10 = body.newObject("PartDesign::Pocket", "Pocket009")
pocket10.Profile = sketch13
pocket10.Length = 0.8
pocket10.Reversed = True

doc.recompute()
